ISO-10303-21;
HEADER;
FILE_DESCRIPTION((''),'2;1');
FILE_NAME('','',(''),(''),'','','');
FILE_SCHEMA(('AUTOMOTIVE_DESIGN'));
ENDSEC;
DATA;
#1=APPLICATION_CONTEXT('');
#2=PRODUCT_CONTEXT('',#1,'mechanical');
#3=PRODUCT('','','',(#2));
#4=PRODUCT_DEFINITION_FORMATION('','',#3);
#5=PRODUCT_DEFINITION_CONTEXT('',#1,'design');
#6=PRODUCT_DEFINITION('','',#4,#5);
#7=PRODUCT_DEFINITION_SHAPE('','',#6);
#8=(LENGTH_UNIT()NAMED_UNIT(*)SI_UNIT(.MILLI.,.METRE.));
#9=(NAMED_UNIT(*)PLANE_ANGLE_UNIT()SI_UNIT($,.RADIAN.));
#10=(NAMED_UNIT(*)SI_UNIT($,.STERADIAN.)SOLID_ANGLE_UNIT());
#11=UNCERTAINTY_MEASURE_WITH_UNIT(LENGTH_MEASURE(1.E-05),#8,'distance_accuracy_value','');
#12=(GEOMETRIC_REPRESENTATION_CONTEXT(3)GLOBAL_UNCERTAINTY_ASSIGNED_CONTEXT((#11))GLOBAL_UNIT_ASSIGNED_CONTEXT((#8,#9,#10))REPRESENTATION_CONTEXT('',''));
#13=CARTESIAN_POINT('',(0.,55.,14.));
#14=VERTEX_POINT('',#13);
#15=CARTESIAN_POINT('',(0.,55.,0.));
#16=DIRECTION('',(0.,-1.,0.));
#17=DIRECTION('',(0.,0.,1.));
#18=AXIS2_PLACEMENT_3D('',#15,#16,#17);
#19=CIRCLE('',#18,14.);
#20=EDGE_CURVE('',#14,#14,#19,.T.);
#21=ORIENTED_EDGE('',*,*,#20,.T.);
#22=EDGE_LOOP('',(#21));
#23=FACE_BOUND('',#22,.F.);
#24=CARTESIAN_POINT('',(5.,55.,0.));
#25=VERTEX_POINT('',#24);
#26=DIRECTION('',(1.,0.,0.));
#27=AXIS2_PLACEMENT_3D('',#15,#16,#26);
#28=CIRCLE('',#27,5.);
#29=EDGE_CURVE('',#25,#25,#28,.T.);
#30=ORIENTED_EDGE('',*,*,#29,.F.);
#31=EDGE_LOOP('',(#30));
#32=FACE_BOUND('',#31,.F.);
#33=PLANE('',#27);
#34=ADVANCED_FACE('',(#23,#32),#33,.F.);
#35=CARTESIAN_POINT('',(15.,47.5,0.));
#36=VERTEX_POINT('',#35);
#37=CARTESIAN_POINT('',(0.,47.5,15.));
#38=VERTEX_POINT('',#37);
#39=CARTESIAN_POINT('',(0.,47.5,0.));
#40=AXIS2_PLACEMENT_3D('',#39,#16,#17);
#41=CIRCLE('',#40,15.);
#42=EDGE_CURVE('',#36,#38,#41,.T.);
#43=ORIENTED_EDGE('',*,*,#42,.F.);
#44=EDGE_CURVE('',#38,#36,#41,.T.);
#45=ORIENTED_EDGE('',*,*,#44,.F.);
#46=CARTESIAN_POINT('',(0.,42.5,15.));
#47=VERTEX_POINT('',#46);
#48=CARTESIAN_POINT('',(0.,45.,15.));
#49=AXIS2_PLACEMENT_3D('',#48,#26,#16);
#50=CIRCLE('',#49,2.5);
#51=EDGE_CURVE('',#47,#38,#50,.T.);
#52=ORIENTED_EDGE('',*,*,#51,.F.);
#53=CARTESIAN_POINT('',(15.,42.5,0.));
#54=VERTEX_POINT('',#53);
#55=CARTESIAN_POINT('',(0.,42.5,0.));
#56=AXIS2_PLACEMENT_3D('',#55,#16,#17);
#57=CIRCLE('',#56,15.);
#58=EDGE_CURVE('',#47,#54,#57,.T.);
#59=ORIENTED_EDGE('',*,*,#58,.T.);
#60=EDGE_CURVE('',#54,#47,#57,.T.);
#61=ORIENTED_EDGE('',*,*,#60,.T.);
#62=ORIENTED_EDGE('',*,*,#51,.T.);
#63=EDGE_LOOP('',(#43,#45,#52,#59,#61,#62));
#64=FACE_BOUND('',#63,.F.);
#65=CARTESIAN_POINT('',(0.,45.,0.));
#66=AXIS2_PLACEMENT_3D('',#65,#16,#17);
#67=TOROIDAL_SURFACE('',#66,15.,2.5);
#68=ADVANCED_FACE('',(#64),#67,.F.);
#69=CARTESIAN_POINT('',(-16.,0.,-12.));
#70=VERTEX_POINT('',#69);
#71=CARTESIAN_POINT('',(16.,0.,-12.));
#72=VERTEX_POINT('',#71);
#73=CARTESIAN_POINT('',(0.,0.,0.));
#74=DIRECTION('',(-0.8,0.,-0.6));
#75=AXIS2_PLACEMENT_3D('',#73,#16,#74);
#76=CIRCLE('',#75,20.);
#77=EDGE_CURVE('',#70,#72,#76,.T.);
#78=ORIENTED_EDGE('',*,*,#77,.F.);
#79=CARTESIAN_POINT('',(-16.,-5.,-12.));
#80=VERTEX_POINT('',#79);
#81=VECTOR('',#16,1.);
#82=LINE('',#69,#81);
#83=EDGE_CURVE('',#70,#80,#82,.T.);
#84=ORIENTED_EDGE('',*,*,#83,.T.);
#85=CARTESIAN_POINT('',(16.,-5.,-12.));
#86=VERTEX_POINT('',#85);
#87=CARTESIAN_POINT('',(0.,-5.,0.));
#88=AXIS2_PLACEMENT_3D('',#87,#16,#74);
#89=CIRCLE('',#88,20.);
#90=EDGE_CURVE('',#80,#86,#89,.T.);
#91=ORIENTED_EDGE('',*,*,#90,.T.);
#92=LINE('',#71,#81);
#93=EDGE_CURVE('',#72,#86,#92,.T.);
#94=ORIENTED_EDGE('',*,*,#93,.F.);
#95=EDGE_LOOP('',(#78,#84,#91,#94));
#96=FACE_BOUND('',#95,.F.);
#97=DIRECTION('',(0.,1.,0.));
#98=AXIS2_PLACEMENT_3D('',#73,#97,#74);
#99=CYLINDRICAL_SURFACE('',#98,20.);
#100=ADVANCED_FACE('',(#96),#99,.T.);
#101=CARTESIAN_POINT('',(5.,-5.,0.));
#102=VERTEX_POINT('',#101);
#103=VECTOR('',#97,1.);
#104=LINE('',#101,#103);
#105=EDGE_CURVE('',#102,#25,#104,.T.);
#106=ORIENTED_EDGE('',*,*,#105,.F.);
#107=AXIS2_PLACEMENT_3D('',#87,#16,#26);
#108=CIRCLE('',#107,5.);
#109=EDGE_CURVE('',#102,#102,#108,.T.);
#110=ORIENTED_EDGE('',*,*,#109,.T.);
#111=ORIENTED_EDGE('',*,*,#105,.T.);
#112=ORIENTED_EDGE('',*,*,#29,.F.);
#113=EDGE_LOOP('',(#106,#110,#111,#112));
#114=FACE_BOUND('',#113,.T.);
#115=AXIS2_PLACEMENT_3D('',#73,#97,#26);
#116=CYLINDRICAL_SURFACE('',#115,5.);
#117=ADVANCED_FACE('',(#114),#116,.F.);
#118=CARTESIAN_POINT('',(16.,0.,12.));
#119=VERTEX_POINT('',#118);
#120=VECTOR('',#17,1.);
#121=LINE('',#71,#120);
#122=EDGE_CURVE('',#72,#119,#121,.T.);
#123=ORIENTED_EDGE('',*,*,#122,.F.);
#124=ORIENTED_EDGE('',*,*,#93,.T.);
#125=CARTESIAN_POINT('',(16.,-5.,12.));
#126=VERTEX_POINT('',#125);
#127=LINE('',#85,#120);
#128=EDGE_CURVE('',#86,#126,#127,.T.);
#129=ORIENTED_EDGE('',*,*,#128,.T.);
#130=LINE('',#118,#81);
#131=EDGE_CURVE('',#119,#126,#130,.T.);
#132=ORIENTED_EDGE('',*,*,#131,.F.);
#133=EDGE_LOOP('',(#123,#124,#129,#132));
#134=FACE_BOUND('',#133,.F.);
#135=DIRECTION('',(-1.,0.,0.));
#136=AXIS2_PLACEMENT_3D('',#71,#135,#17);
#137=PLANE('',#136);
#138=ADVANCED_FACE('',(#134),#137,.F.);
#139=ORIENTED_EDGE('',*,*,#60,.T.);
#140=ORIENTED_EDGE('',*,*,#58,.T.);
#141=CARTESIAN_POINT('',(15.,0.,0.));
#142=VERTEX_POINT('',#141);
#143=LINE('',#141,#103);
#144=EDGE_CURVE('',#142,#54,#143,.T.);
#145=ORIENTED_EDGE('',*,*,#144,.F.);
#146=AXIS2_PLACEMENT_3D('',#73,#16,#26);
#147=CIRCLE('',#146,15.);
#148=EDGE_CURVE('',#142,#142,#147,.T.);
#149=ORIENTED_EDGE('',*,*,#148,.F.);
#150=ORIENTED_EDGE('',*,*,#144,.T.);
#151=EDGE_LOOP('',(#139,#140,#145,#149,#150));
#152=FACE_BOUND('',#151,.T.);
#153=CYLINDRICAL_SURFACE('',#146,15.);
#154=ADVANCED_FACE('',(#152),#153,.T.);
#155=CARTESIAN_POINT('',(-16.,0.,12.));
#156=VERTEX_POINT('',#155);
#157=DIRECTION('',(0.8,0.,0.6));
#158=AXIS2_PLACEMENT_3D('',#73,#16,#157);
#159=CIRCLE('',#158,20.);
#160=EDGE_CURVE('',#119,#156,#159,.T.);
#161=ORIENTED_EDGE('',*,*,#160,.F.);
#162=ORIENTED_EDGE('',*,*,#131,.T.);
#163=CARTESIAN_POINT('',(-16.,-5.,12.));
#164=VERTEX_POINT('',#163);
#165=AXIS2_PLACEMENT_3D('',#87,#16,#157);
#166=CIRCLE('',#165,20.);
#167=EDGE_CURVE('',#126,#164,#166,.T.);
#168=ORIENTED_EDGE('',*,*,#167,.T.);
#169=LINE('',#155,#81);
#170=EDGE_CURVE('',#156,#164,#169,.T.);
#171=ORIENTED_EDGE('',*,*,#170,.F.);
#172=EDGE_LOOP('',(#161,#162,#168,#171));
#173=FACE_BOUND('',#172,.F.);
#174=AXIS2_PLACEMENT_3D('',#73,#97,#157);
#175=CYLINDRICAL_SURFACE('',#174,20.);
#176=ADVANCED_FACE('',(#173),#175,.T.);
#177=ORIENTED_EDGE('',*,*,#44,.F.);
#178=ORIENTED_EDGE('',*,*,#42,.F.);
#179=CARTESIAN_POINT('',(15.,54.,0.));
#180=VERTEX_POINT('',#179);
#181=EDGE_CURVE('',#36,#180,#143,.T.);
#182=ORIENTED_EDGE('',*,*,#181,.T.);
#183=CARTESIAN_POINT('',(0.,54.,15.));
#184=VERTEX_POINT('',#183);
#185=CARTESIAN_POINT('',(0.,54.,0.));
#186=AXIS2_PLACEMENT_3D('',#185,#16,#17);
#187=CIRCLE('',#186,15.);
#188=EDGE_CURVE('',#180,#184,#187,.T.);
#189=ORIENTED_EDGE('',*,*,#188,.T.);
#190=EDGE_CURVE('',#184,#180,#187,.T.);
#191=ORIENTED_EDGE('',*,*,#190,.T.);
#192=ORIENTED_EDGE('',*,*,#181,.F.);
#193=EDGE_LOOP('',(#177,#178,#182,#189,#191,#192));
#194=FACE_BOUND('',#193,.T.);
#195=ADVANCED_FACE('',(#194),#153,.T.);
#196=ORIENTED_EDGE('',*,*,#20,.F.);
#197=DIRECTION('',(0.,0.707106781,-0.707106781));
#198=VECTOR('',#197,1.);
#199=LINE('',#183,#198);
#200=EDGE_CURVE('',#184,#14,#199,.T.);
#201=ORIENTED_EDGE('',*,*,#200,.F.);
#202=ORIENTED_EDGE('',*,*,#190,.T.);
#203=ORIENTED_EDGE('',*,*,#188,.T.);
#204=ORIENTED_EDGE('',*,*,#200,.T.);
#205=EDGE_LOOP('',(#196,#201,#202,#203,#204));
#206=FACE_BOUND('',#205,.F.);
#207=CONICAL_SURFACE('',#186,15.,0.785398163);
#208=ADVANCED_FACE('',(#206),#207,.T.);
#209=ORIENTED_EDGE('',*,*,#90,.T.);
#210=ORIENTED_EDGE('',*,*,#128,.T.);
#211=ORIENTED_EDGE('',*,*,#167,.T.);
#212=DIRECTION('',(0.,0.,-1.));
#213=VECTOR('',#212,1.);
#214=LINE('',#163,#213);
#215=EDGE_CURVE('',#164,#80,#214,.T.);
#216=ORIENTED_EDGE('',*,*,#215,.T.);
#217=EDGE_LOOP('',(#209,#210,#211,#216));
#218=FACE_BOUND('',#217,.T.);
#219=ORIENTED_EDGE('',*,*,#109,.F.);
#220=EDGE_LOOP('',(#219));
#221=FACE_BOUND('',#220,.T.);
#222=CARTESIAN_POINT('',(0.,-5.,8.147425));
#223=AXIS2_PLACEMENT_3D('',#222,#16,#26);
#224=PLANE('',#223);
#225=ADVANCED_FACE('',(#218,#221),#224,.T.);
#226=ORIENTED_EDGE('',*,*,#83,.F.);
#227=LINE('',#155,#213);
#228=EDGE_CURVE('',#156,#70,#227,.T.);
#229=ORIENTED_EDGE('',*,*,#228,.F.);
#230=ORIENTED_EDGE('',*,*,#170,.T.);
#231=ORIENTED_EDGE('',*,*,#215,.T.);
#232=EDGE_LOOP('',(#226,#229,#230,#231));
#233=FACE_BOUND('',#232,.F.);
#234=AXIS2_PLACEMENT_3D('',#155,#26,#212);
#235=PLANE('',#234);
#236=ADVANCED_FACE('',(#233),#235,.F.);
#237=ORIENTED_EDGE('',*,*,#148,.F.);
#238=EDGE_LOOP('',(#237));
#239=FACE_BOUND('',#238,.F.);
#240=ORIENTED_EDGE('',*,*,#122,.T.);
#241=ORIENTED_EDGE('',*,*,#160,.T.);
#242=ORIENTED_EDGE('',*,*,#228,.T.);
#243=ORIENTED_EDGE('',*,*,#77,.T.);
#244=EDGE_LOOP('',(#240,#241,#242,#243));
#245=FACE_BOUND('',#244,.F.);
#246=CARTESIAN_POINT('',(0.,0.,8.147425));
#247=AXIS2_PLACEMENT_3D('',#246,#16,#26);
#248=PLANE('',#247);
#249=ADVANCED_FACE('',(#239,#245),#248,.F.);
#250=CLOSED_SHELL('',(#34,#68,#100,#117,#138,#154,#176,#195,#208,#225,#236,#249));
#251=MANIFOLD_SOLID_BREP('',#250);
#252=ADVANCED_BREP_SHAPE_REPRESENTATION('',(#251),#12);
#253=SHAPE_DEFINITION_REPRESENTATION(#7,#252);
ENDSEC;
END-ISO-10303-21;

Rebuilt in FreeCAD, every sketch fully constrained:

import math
import FreeCAD as App
import Part
import Sketcher

V = App.Vector
Q = App.Units.Quantity


def add_polygon(sketch, points):
    """Adds a closed chain of lines whose ends are joined by coincident constraints."""
    first, n = sketch.GeometryCount, len(points)
    for a, b in zip(points, points[1:] + points[:1]):
        sketch.addGeometry(Part.LineSegment(App.Vector(*a, 0), App.Vector(*b, 0)), False)
    for i in range(n):
        sketch.addConstraint(Sketcher.Constraint("Coincident", first + i, 2, first + (i + 1) % n, 1))

doc = App.newDocument("Part")
params = doc.addObject("Spreadsheet::Sheet", "Params")
for row, (alias, value) in enumerate([
    ("sketch1_radius", "20 mm"),
    ("sketch1_height", "24 mm"),
    ("pad1_length", "5 mm"),
    ("sketch2_diameter", "30 mm"),
    ("pad2_length", "55 mm"),
    ("sketch3_diameter", "10 mm"),
    ("sketch4_diameter", "10 mm"),
    ("sketch5_radius", "2.5 mm"),
    ("groove_angle", "360 deg"),
    ("sketch6_width", "1 mm"),
    ("groove2_angle", "360 deg"),
], start=1):
    params.set(f"A{row}", alias)
    params.set(f"B{row}", "=" + value)
    params.setAlias(f"B{row}", alias)

body = doc.addObject("PartDesign::Body", "Body")

# Sketch on XZ plane
sketch1 = body.newObject("Sketcher::SketchObject", "Sketch")
sketch1.AttachmentSupport = (doc.getObject("XZ_Plane"), [""])
sketch1.MapMode = "FlatFace"
sketch1.addGeometry([
    Part.ArcOfCircle(Part.Circle(V(0, 0, 0), V(0, 0, 1), 20), math.radians(37), math.radians(143)),
    Part.LineSegment(V(-16, 12, 0), V(-16, -12, 0)),
    Part.ArcOfCircle(Part.Circle(V(0, 0, 0), V(0, 0, 1), 20), math.radians(-143), math.radians(-37)),
    Part.LineSegment(V(16, -12, 0), V(16, 12, 0)),
], False)
sketch1.addConstraint([
    Sketcher.Constraint("Coincident", 0, 2, 1, 1),
    Sketcher.Constraint("Coincident", 1, 2, 2, 1),
    Sketcher.Constraint("Coincident", 2, 2, 3, 1),
    Sketcher.Constraint("Coincident", 3, 2, 0, 1),
    Sketcher.Constraint("Vertical", 1),
    Sketcher.Constraint("Vertical", 3),
    Sketcher.Constraint("Coincident", 0, 3, -1, 1),
    Sketcher.Constraint("Coincident", 2, 3, -1, 1),
    Sketcher.Constraint("Equal", 0, 2),
    Sketcher.Constraint("Horizontal", 1, 2, 2, 2),
    Sketcher.Constraint("Radius", 0, Q("20 mm")),
    Sketcher.Constraint("DistanceY", 1, 2, 1, 1, Q("24 mm")),
])
sketch1.setExpression("Constraints[10]", "Params.sketch1_radius")
sketch1.setExpression("Constraints[11]", "Params.sketch1_height")
pad1 = body.newObject("PartDesign::Pad", "Pad")
pad1.Profile = sketch1
pad1.setExpression("Length", "Params.pad1_length")

# Sketch on XZ plane
sketch2 = body.newObject("Sketcher::SketchObject", "Sketch001")
sketch2.AttachmentSupport = (doc.getObject("XZ_Plane"), [""])
sketch2.MapMode = "FlatFace"
sketch2.addGeometry(Part.Circle(V(0, 0, 0), V(0, 0, 1), 15), False)
sketch2.addConstraint([
    Sketcher.Constraint("Coincident", 0, 3, -1, 1),
    Sketcher.Constraint("Diameter", 0, Q("30 mm")),
])
sketch2.setExpression("Constraints[1]", "Params.sketch2_diameter")
pad2 = body.newObject("PartDesign::Pad", "Pad001")
pad2.Profile = sketch2
pad2.setExpression("Length", "Params.pad2_length")
pad2.Reversed = True

# Sketch on XZ plane
sketch3 = body.newObject("Sketcher::SketchObject", "Sketch002")
sketch3.AttachmentSupport = (doc.getObject("XZ_Plane"), [""])
sketch3.MapMode = "FlatFace"
sketch3.addGeometry(Part.Circle(V(0, 0, 0), V(0, 0, 1), 5), False)
sketch3.addConstraint([
    Sketcher.Constraint("Coincident", 0, 3, -1, 1),
    Sketcher.Constraint("Diameter", 0, Q("10 mm")),
])
sketch3.setExpression("Constraints[1]", "Params.sketch3_diameter")
pocket1 = body.newObject("PartDesign::Pocket", "Pocket")
pocket1.Profile = sketch3
pocket1.Type = "ThroughAll"

# Sketch on XZ plane
sketch4 = body.newObject("Sketcher::SketchObject", "Sketch003")
sketch4.AttachmentSupport = (doc.getObject("XZ_Plane"), [""])
sketch4.MapMode = "FlatFace"
sketch4.addGeometry(Part.Circle(V(0, 0, 0), V(0, 0, 1), 5), False)
sketch4.addConstraint([
    Sketcher.Constraint("Coincident", 0, 3, -1, 1),
    Sketcher.Constraint("Diameter", 0, Q("10 mm")),
])
sketch4.setExpression("Constraints[1]", "Params.sketch4_diameter")
pocket2 = body.newObject("PartDesign::Pocket", "Pocket001")
pocket2.Profile = sketch4
pocket2.Type = "ThroughAll"
pocket2.Reversed = True

# Sketch on YZ plane
sketch5 = body.newObject("Sketcher::SketchObject", "Sketch004")
sketch5.AttachmentSupport = (doc.getObject("YZ_Plane"), [""])
sketch5.MapMode = "FlatFace"
sketch5.addGeometry([
    Part.ArcOfCircle(Part.Circle(V(45, 15, 0), V(0, 0, 1), 2.5), math.radians(180), math.radians(360)),
    Part.LineSegment(V(47.5, 15, 0), V(42.5, 15, 0)),
], False)
sketch5.addConstraint([
    Sketcher.Constraint("Coincident", 0, 1, 1, 2),
    Sketcher.Constraint("Coincident", 1, 1, 0, 2),
    Sketcher.Constraint("Horizontal", 1),
    Sketcher.Constraint("Radius", 0, Q("2.5 mm")),
    Sketcher.Constraint("DistanceX", -1, 1, 0, 3, Q("45 mm")),
    Sketcher.Constraint("DistanceY", -1, 1, 0, 3, Q("15 mm")),
    Sketcher.Constraint("DistanceY", -1, 1, 0, 1, Q("15 mm")),
])
sketch5.setExpression("Constraints[3]", "Params.sketch5_radius")
groove = body.newObject("PartDesign::Groove", "Groove")
groove.Profile = sketch5
groove.ReferenceAxis = (sketch5, ["H_Axis"])
groove.setExpression("Angle", "Params.groove_angle")

# Sketch on YZ plane
sketch6 = body.newObject("Sketcher::SketchObject", "Sketch005")
sketch6.AttachmentSupport = (doc.getObject("YZ_Plane"), [""])
sketch6.MapMode = "FlatFace"
add_polygon(sketch6, [(54, 15), (55, 14), (55, 15)])  # lines 0-2
sketch6.addConstraint([
    Sketcher.Constraint("Vertical", 1),
    Sketcher.Constraint("Horizontal", 2),
    Sketcher.Constraint("Equal", 2, 1),
    Sketcher.Constraint("DistanceX", 2, 2, 2, 1, Q("1 mm")),
    Sketcher.Constraint("DistanceX", -1, 1, 0, 2, Q("55 mm")),
    Sketcher.Constraint("DistanceY", -1, 1, 0, 2, Q("14 mm")),
])
sketch6.setExpression("Constraints[6]", "Params.sketch6_width")
groove2 = body.newObject("PartDesign::Groove", "Groove001")
groove2.Profile = sketch6
groove2.ReferenceAxis = (sketch6, ["H_Axis"])
groove2.setExpression("Angle", "Params.groove2_angle")

doc.recompute()
